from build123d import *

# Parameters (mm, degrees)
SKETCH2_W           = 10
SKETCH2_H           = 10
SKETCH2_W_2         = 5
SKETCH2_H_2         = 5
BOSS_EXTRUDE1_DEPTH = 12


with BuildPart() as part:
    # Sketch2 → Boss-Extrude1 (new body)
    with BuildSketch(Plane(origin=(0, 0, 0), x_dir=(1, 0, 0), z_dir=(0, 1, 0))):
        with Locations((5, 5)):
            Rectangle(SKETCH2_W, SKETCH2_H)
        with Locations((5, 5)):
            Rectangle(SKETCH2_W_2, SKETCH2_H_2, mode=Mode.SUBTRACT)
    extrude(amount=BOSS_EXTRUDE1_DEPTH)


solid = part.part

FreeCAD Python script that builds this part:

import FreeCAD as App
import Part
import Sketcher


def add_polygon(sketch, points):
    """Adds a closed chain of lines whose ends are joined by coincident constraints."""
    first, n = sketch.GeometryCount, len(points)
    for a, b in zip(points, points[1:] + points[:1]):
        sketch.addGeometry(Part.LineSegment(App.Vector(*a, 0), App.Vector(*b, 0)), False)
    for i in range(n):
        sketch.addConstraint(Sketcher.Constraint("Coincident", first + i, 2, first + (i + 1) % n, 1))

doc = App.newDocument("Part")
body = doc.addObject("PartDesign::Body", "Body")

sketch1 = doc.addObject("Sketcher::SketchObject", "Sketch")
body.addObject(sketch1)
sketch1.AttachmentSupport = (doc.XZ_Plane, [""])
sketch1.MapMode = "FlatFace"
add_polygon(sketch1, [(0, -10), (0, 0), (10, 0), (10, -10)])
add_polygon(sketch1, [(7.5, -2.5), (2.5, -2.5), (2.5, -7.5), (7.5, -7.5)])
sketch1.addConstraint([
    Sketcher.Constraint("Vertical", 0),
    Sketcher.Constraint("Horizontal", 1),
    Sketcher.Constraint("Vertical", 2),
    Sketcher.Constraint("Horizontal", 3),
    Sketcher.Constraint("Horizontal", 4),
    Sketcher.Constraint("Vertical", 5),
    Sketcher.Constraint("Horizontal", 6),
    Sketcher.Constraint("Vertical", 7),
    Sketcher.Constraint("Coincident", 0, 2, -1, 1),
    Sketcher.Constraint("Equal", 3, 0),
    Sketcher.Constraint("Equal", 6, 5),
    Sketcher.Constraint("DistanceX", 1, 1, 1, 2, 10.0),
    Sketcher.Constraint("DistanceX", 4, 2, 4, 1, 5.0),
    Sketcher.Constraint("DistanceX", -1, 1, 4, 2, 2.5),
    Sketcher.Constraint("DistanceY", 4, 2, -1, 1, 2.5),
])
pad1 = doc.addObject("PartDesign::Pad", "Pad")
body.addObject(pad1)
pad1.Profile = sketch1
pad1.Length = 12
pad1.Reversed = True

doc.recompute()
